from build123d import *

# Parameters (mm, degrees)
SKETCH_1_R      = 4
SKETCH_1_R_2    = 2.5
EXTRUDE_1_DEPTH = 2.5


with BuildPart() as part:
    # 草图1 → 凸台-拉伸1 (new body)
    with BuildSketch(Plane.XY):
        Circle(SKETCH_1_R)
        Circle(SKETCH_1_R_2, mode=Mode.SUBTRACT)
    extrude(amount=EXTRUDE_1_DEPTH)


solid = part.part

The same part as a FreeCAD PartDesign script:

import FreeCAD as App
import Part
import Sketcher

V = App.Vector
Q = App.Units.Quantity

doc = App.newDocument("Part")
body = doc.addObject("PartDesign::Body", "Body")

# Sketch on XY plane
sketch1 = body.newObject("Sketcher::SketchObject", "Sketch")
sketch1.AttachmentSupport = (doc.getObject("XY_Plane"), [""])
sketch1.MapMode = "FlatFace"
sketch1.addGeometry(Part.Circle(V(0, 0, 0), V(0, 0, 1), 4), False)
sketch1.addGeometry(Part.Circle(V(0, 0, 0), V(0, 0, 1), 2.5), False)
sketch1.addConstraint(Sketcher.Constraint("Coincident", 0, 3, -1, 1))
sketch1.addConstraint(Sketcher.Constraint("Coincident", 1, 3, -1, 1))
sketch1.addConstraint(Sketcher.Constraint("Diameter", 0, Q("8 mm")))
sketch1.addConstraint(Sketcher.Constraint("Diameter", 1, Q("5 mm")))
pad1 = body.newObject("PartDesign::Pad", "Pad")
pad1.Profile = sketch1
pad1.Length = 2.5

doc.recompute()
